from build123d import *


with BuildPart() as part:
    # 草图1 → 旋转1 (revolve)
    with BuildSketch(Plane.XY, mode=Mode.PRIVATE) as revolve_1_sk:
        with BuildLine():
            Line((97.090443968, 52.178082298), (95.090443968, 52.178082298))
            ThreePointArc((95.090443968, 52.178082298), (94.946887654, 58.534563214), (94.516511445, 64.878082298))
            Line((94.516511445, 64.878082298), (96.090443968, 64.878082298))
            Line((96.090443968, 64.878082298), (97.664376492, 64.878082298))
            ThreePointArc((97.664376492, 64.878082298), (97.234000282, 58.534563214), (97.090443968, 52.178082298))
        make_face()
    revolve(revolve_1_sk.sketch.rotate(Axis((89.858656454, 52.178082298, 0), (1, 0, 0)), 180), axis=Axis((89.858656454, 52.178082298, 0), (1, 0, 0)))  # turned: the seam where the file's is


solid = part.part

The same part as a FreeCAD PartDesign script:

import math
import FreeCAD as App
import Part
import Sketcher

doc = App.newDocument("Part")
body = doc.addObject("PartDesign::Body", "Body")

# Sketch on XY plane
sketch1 = body.newObject("Sketcher::SketchObject", "Sketch")
sketch1.AttachmentSupport = (doc.getObject("XY_Plane"), [""])
sketch1.MapMode = "FlatFace"
sketch1.addGeometry(Part.LineSegment(App.Vector(95.1, 52.2, 0), App.Vector(97.1, 52.2, 0)), False)
sketch1.addGeometry(Part.ArcOfCircle(Part.Circle(App.Vector(237.9, 52.2, 0), App.Vector(0, 0, 1), 140.8), math.radians(174.82), math.radians(180)), False)
sketch1.addGeometry(Part.LineSegment(App.Vector(97.7, 64.9, 0), App.Vector(94.5, 64.9, 0)), False)
sketch1.addGeometry(Part.ArcOfCircle(Part.Circle(App.Vector(-45.7, 52.2, 0), App.Vector(0, 0, 1), 140.8), math.radians(0), math.radians(5.18)), False)
sketch1.addGeometry(Part.LineSegment(App.Vector(-45.7, 52.2, 0), App.Vector(237.9, 52.2, 0)), True)  # axis
sketch1.addConstraint(Sketcher.Constraint("Coincident", 0, 2, 1, 2))
sketch1.addConstraint(Sketcher.Constraint("Coincident", 1, 1, 2, 1))
sketch1.addConstraint(Sketcher.Constraint("Coincident", 2, 2, 3, 2))
sketch1.addConstraint(Sketcher.Constraint("Coincident", 3, 1, 0, 1))
sketch1.addConstraint(Sketcher.Constraint("Horizontal", 0))
sketch1.addConstraint(Sketcher.Constraint("Horizontal", 2))
sketch1.addConstraint(Sketcher.Constraint("Horizontal", 4))
sketch1.addConstraint(Sketcher.Constraint("Coincident", 4, 1, 3, 3))
sketch1.addConstraint(Sketcher.Constraint("Coincident", 4, 2, 1, 3))
sketch1.addConstraint(Sketcher.Constraint("Equal", 1, 3))
sketch1.addConstraint(Sketcher.Constraint("Horizontal", 3, 3, 0, 2))
sketch1.addConstraint(Sketcher.Constraint("Radius", 1, 140.8))
sketch1.addConstraint(Sketcher.Constraint("DistanceX", 0, 1, 0, 2, 2.0))
sketch1.addConstraint(Sketcher.Constraint("DistanceY", 0, 2, 1, 1, 12.7))
sketch1.addConstraint(Sketcher.Constraint("DistanceX", -1, 1, 2, 2, 94.516511))
sketch1.addConstraint(Sketcher.Constraint("DistanceY", -1, 1, 1, 3, 52.178082))
revolution = body.newObject("PartDesign::Revolution", "Revolution")
revolution.Profile = sketch1
revolution.ReferenceAxis = (sketch1, ["Axis0"])
revolution.Angle = 360

doc.recompute()
